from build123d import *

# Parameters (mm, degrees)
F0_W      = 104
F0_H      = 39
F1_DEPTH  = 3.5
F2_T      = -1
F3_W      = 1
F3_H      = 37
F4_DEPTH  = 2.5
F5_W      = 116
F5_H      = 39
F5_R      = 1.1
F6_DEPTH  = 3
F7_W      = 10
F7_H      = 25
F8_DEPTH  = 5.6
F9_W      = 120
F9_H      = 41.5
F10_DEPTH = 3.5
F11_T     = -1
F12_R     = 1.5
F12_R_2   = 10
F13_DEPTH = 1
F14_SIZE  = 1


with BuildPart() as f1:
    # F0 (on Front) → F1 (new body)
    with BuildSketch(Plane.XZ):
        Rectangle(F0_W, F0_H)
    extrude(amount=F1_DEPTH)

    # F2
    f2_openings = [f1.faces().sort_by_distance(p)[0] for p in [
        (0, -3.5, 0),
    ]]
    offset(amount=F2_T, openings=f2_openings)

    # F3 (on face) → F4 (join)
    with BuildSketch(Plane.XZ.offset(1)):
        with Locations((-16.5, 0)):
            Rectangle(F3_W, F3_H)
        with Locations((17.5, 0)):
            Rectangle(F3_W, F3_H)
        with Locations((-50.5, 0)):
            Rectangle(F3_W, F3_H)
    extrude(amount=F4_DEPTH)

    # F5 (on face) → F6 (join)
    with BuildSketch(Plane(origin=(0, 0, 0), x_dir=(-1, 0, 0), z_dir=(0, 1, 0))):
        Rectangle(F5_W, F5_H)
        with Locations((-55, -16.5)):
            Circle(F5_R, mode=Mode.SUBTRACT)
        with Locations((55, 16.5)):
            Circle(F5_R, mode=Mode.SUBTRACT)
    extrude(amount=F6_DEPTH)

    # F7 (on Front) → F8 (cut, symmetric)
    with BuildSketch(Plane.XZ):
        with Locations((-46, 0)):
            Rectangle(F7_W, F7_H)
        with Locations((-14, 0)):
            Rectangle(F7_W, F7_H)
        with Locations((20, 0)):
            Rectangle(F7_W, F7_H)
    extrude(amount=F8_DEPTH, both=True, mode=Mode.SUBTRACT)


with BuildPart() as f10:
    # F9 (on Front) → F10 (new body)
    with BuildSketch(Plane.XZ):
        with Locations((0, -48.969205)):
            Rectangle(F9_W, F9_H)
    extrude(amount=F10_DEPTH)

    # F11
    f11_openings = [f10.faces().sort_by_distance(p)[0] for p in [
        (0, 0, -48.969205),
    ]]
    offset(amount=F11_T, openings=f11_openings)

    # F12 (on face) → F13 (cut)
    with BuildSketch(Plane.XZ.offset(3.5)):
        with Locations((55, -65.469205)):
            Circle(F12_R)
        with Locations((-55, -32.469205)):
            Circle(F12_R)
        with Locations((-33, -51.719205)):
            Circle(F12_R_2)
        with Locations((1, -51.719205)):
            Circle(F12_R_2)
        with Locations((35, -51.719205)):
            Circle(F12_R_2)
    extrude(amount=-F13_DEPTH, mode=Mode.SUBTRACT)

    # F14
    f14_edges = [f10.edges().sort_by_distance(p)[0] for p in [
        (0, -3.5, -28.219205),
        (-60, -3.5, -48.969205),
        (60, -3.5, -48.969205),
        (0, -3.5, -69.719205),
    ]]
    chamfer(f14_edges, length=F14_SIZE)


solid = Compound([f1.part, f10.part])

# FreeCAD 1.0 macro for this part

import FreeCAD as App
import Part
import Sketcher

V = App.Vector
Q = App.Units.Quantity


def edges_at(feature, points):
    """Names of the edges that pass closest to the given points."""
    edges = feature.Shape.Edges
    near = lambda p: min(range(len(edges)), key=lambda i: edges[i].distToShape(Part.Vertex(*p))[0])
    return sorted({f"Edge{near(p) + 1}" for p in points})


def faces_at(feature, points):
    """Names of the faces that lie closest to the given points."""
    faces = feature.Shape.Faces
    near = lambda p: min(range(len(faces)), key=lambda i: faces[i].distToShape(Part.Vertex(*p))[0])
    return sorted({f"Face{near(p) + 1}" for p in points})


def add_polygon(sketch, points):
    """Adds a closed chain of lines whose ends are joined by coincident constraints."""
    first, n = sketch.GeometryCount, len(points)
    for a, b in zip(points, points[1:] + points[:1]):
        sketch.addGeometry(Part.LineSegment(App.Vector(*a, 0), App.Vector(*b, 0)), False)
    for i in range(n):
        sketch.addConstraint(Sketcher.Constraint("Coincident", first + i, 2, first + (i + 1) % n, 1))

doc = App.newDocument("Part")
body = doc.addObject("PartDesign::Body", "Body")

# Sketch on XZ plane
sketch1 = body.newObject("Sketcher::SketchObject", "Sketch")
sketch1.AttachmentSupport = (doc.getObject("XZ_Plane"), [""])
sketch1.MapMode = "FlatFace"
add_polygon(sketch1, [(-52, 20), (-52, -20), (52, -20), (52, 20)])  # lines 0-3
sketch1.addConstraint(Sketcher.Constraint("Vertical", 0))
sketch1.addConstraint(Sketcher.Constraint("Horizontal", 1))
sketch1.addConstraint(Sketcher.Constraint("Vertical", 2))
sketch1.addConstraint(Sketcher.Constraint("Horizontal", 3))
sketch1.addConstraint(Sketcher.Constraint("Symmetric", 0, 2, 2, 2, -1, 1))
sketch1.addConstraint(Sketcher.Constraint("DistanceX", 1, 1, 1, 2, Q("104 mm")))
sketch1.addConstraint(Sketcher.Constraint("DistanceY", 0, 2, 0, 1, Q("39 mm")))
pad1 = body.newObject("PartDesign::Pad", "Pad")
pad1.Profile = sketch1
pad1.Length = 3.5
doc.recompute()

thickness = body.newObject("PartDesign::Thickness", "Thickness")
thickness.Base = (pad1, faces_at(pad1, [(0, -3.5, 0)]))
thickness.Value = 1
thickness.Reversed = True
thickness.Join = "Arc"

# Sketch on XZ plane
sketch2 = body.newObject("Sketcher::SketchObject", "Sketch001")
sketch2.AttachmentSupport = (doc.getObject("XZ_Plane"), [""])
sketch2.MapMode = "FlatFace"
sketch2.AttachmentOffset = App.Placement(V(0, 0, 1), App.Rotation())
add_polygon(sketch2, [(-17, 18.5), (-17, -18.5), (-16, -18.5), (-16, 18.5)])  # lines 0-3
add_polygon(sketch2, [(17, 18.5), (17, -18.5), (18, -18.5), (18, 18.5)])  # lines 4-7
add_polygon(sketch2, [(-51, 18.5), (-51, -18.5), (-50, -18.5), (-50, 18.5)])  # lines 8-11
sketch2.addConstraint(Sketcher.Constraint("Vertical", 0))
sketch2.addConstraint(Sketcher.Constraint("Horizontal", 1))
sketch2.addConstraint(Sketcher.Constraint("Vertical", 2))
sketch2.addConstraint(Sketcher.Constraint("Horizontal", 3))
sketch2.addConstraint(Sketcher.Constraint("Vertical", 4))
sketch2.addConstraint(Sketcher.Constraint("Horizontal", 5))
sketch2.addConstraint(Sketcher.Constraint("Vertical", 6))
sketch2.addConstraint(Sketcher.Constraint("Horizontal", 7))
sketch2.addConstraint(Sketcher.Constraint("Vertical", 8))
sketch2.addConstraint(Sketcher.Constraint("Horizontal", 9))
sketch2.addConstraint(Sketcher.Constraint("Vertical", 10))
sketch2.addConstraint(Sketcher.Constraint("Horizontal", 11))
sketch2.addConstraint(Sketcher.Constraint("Symmetric", 3, 2, 4, 2, -1, 1))
sketch2.addConstraint(Sketcher.Constraint("Horizontal", 1, 2, 4, 2))
sketch2.addConstraint(Sketcher.Constraint("Horizontal", 3, 2, 6, 2))
sketch2.addConstraint(Sketcher.Constraint("Horizontal", 5, 2, 8, 2))
sketch2.addConstraint(Sketcher.Constraint("Horizontal", 7, 2, 10, 2))
sketch2.addConstraint(Sketcher.Constraint("Equal", 3, 5))
sketch2.addConstraint(Sketcher.Constraint("Equal", 7, 9))
sketch2.addConstraint(Sketcher.Constraint("DistanceX", 1, 1, 1, 2, Q("1 mm")))
sketch2.addConstraint(Sketcher.Constraint("DistanceY", 0, 2, 0, 1, Q("37 mm")))
sketch2.addConstraint(Sketcher.Constraint("DistanceX", 0, 2, -1, 1, Q("17 mm")))
sketch2.addConstraint(Sketcher.Constraint("DistanceX", 8, 2, -1, 1, Q("51 mm")))
pad2 = body.newObject("PartDesign::Pad", "Pad001")
pad2.Profile = sketch2
pad2.Length = 2.5

# Sketch on XZ plane
sketch3 = body.newObject("Sketcher::SketchObject", "Sketch002")
sketch3.AttachmentSupport = (doc.getObject("XZ_Plane"), [""])
sketch3.MapMode = "FlatFace"
add_polygon(sketch3, [(58, 19.5), (58, -19.5), (-58, -19.5), (-58, 19.5)])  # lines 0-3
sketch3.addGeometry(Part.Circle(V(55, -16.5, 0), V(0, 0, 1), 1.1), False)  # 4
sketch3.addGeometry(Part.Circle(V(-55, 16.5, 0), V(0, 0, 1), 1.1), False)  # 5
sketch3.addConstraint(Sketcher.Constraint("Vertical", 0))
sketch3.addConstraint(Sketcher.Constraint("Horizontal", 1))
sketch3.addConstraint(Sketcher.Constraint("Vertical", 2))
sketch3.addConstraint(Sketcher.Constraint("Horizontal", 3))
sketch3.addConstraint(Sketcher.Constraint("Equal", 4, 5))
sketch3.addConstraint(Sketcher.Constraint("Symmetric", 4, 3, 5, 3, -1, 1))
sketch3.addConstraint(Sketcher.Constraint("Symmetric", 0, 2, 2, 2, -1, 1))
sketch3.addConstraint(Sketcher.Constraint("Diameter", 4, Q("2.2 mm")))
sketch3.addConstraint(Sketcher.Constraint("DistanceX", 1, 2, 1, 1, Q("116 mm")))
sketch3.addConstraint(Sketcher.Constraint("DistanceY", 0, 2, 0, 1, Q("39 mm")))
sketch3.addConstraint(Sketcher.Constraint("DistanceX", -1, 1, 4, 3, Q("55 mm")))
sketch3.addConstraint(Sketcher.Constraint("DistanceY", 4, 3, 5, 3, Q("33 mm")))
pad3 = body.newObject("PartDesign::Pad", "Pad002")
pad3.Profile = sketch3
pad3.Length = 3
pad3.Reversed = True

# Sketch on XZ plane
sketch4 = body.newObject("Sketcher::SketchObject", "Sketch003")
sketch4.AttachmentSupport = (doc.getObject("XZ_Plane"), [""])
sketch4.MapMode = "FlatFace"
add_polygon(sketch4, [(-51, 12), (-51, -12), (-41, -12), (-41, 12)])  # lines 0-3
add_polygon(sketch4, [(-19, 12), (-19, -12), (-9, -12), (-9, 12)])  # lines 4-7
add_polygon(sketch4, [(15, 12), (15, -12), (25, -12), (25, 12)])  # lines 8-11
sketch4.addConstraint(Sketcher.Constraint("Vertical", 0))
sketch4.addConstraint(Sketcher.Constraint("Horizontal", 1))
sketch4.addConstraint(Sketcher.Constraint("Vertical", 2))
sketch4.addConstraint(Sketcher.Constraint("Horizontal", 3))
sketch4.addConstraint(Sketcher.Constraint("Vertical", 4))
sketch4.addConstraint(Sketcher.Constraint("Horizontal", 5))
sketch4.addConstraint(Sketcher.Constraint("Vertical", 6))
sketch4.addConstraint(Sketcher.Constraint("Horizontal", 7))
sketch4.addConstraint(Sketcher.Constraint("Vertical", 8))
sketch4.addConstraint(Sketcher.Constraint("Horizontal", 9))
sketch4.addConstraint(Sketcher.Constraint("Vertical", 10))
sketch4.addConstraint(Sketcher.Constraint("Horizontal", 11))
sketch4.addConstraint(Sketcher.Constraint("Horizontal", 1, 2, 4, 2))
sketch4.addConstraint(Sketcher.Constraint("Horizontal", 3, 2, 6, 2))
sketch4.addConstraint(Sketcher.Constraint("Horizontal", 5, 2, 8, 2))
sketch4.addConstraint(Sketcher.Constraint("Horizontal", 7, 2, 10, 2))
sketch4.addConstraint(Sketcher.Constraint("Equal", 3, 5))
sketch4.addConstraint(Sketcher.Constraint("Equal", 7, 9))
sketch4.addConstraint(Sketcher.Constraint("DistanceX", 1, 1, 1, 2, Q("10 mm")))
sketch4.addConstraint(Sketcher.Constraint("DistanceY", 0, 2, 0, 1, Q("25 mm")))
sketch4.addConstraint(Sketcher.Constraint("DistanceX", 0, 2, -1, 1, Q("51 mm")))
sketch4.addConstraint(Sketcher.Constraint("DistanceX", 4, 2, -1, 1, Q("19 mm")))
sketch4.addConstraint(Sketcher.Constraint("DistanceX", -1, 1, 8, 2, Q("15 mm")))
sketch4.addConstraint(Sketcher.Constraint("DistanceY", 0, 2, -1, 1, Q("12.5 mm")))
pocket1 = body.newObject("PartDesign::Pocket", "Pocket")
pocket1.Profile = sketch4
pocket1.Length = 11.2
pocket1.Midplane = True
body2 = doc.addObject("PartDesign::Body", "Body001")

# Sketch on XZ plane
sketch5 = body2.newObject("Sketcher::SketchObject", "Sketch004")
sketch5.AttachmentSupport = (doc.getObject("XZ_Plane001"), [""])
sketch5.MapMode = "FlatFace"
add_polygon(sketch5, [(-60, -28), (-60, -70), (60, -70), (60, -28)])  # lines 0-3
sketch5.addConstraint(Sketcher.Constraint("Vertical", 0))
sketch5.addConstraint(Sketcher.Constraint("Horizontal", 1))
sketch5.addConstraint(Sketcher.Constraint("Vertical", 2))
sketch5.addConstraint(Sketcher.Constraint("Horizontal", 3))
sketch5.addConstraint(Sketcher.Constraint("DistanceX", 1, 1, 1, 2, Q("120 mm")))
sketch5.addConstraint(Sketcher.Constraint("DistanceY", 0, 2, 0, 1, Q("41.5 mm")))
sketch5.addConstraint(Sketcher.Constraint("DistanceX", 0, 2, -1, 1, Q("60 mm")))
sketch5.addConstraint(Sketcher.Constraint("DistanceY", 0, 2, -1, 1, Q("69.719205 mm")))
pad4 = body2.newObject("PartDesign::Pad", "Pad003")
pad4.Profile = sketch5
pad4.Length = 3.5
doc.recompute()

thickness2 = body2.newObject("PartDesign::Thickness", "Thickness001")
thickness2.Base = (pad4, faces_at(pad4, [(0, 0, -48.969)]))
thickness2.Value = 1
thickness2.Reversed = True
thickness2.Join = "Arc"

# Sketch on XZ plane
sketch6 = body2.newObject("Sketcher::SketchObject", "Sketch005")
sketch6.AttachmentSupport = (doc.getObject("XZ_Plane001"), [""])
sketch6.MapMode = "FlatFace"
sketch6.AttachmentOffset = App.Placement(V(0, 0, 3.5), App.Rotation())
sketch6.addGeometry(Part.Circle(V(55, -65.5, 0), V(0, 0, 1), 1.5), False)
sketch6.addGeometry(Part.Circle(V(-55, -32.5, 0), V(0, 0, 1), 1.5), False)
sketch6.addGeometry(Part.Circle(V(-33, -51.7, 0), V(0, 0, 1), 10), False)
sketch6.addGeometry(Part.Circle(V(1, -51.7, 0), V(0, 0, 1), 10), False)
sketch6.addGeometry(Part.Circle(V(35, -51.7, 0), V(0, 0, 1), 10), False)
sketch6.addConstraint(Sketcher.Constraint("Equal", 0, 1))
sketch6.addConstraint(Sketcher.Constraint("Equal", 2, 3))
sketch6.addConstraint(Sketcher.Constraint("Equal", 3, 4))
sketch6.addConstraint(Sketcher.Constraint("Horizontal", 2, 3, 3, 3))
sketch6.addConstraint(Sketcher.Constraint("Horizontal", 3, 3, 4, 3))
sketch6.addConstraint(Sketcher.Constraint("Diameter", 0, Q("3 mm")))
sketch6.addConstraint(Sketcher.Constraint("Diameter", 2, Q("20 mm")))
sketch6.addConstraint(Sketcher.Constraint("DistanceX", -1, 1, 0, 3, Q("55 mm")))
sketch6.addConstraint(Sketcher.Constraint("DistanceX", 1, 3, -1, 1, Q("55 mm")))
sketch6.addConstraint(Sketcher.Constraint("DistanceX", 2, 3, -1, 1, Q("33 mm")))
sketch6.addConstraint(Sketcher.Constraint("DistanceX", -1, 1, 3, 3, Q("1 mm")))
sketch6.addConstraint(Sketcher.Constraint("DistanceX", -1, 1, 4, 3, Q("35 mm")))
sketch6.addConstraint(Sketcher.Constraint("DistanceY", 0, 3, 1, 3, Q("33 mm")))
sketch6.addConstraint(Sketcher.Constraint("DistanceY", 2, 3, 1, 3, Q("19.25 mm")))
sketch6.addConstraint(Sketcher.Constraint("DistanceY", 0, 3, -1, 1, Q("65.469205 mm")))
pocket2 = body2.newObject("PartDesign::Pocket", "Pocket001")
pocket2.Profile = sketch6
pocket2.Length = 1
doc.recompute()

chamfer = body2.newObject("PartDesign::Chamfer", "Chamfer")
chamfer.Base = (pocket2, edges_at(pocket2, [
    (0, -3.5, -28.219),
    (-60, -3.5, -48.969),
    (60, -3.5, -48.969),
    (0, -3.5, -69.719),
]))
chamfer.Size = 1

doc.recompute()
